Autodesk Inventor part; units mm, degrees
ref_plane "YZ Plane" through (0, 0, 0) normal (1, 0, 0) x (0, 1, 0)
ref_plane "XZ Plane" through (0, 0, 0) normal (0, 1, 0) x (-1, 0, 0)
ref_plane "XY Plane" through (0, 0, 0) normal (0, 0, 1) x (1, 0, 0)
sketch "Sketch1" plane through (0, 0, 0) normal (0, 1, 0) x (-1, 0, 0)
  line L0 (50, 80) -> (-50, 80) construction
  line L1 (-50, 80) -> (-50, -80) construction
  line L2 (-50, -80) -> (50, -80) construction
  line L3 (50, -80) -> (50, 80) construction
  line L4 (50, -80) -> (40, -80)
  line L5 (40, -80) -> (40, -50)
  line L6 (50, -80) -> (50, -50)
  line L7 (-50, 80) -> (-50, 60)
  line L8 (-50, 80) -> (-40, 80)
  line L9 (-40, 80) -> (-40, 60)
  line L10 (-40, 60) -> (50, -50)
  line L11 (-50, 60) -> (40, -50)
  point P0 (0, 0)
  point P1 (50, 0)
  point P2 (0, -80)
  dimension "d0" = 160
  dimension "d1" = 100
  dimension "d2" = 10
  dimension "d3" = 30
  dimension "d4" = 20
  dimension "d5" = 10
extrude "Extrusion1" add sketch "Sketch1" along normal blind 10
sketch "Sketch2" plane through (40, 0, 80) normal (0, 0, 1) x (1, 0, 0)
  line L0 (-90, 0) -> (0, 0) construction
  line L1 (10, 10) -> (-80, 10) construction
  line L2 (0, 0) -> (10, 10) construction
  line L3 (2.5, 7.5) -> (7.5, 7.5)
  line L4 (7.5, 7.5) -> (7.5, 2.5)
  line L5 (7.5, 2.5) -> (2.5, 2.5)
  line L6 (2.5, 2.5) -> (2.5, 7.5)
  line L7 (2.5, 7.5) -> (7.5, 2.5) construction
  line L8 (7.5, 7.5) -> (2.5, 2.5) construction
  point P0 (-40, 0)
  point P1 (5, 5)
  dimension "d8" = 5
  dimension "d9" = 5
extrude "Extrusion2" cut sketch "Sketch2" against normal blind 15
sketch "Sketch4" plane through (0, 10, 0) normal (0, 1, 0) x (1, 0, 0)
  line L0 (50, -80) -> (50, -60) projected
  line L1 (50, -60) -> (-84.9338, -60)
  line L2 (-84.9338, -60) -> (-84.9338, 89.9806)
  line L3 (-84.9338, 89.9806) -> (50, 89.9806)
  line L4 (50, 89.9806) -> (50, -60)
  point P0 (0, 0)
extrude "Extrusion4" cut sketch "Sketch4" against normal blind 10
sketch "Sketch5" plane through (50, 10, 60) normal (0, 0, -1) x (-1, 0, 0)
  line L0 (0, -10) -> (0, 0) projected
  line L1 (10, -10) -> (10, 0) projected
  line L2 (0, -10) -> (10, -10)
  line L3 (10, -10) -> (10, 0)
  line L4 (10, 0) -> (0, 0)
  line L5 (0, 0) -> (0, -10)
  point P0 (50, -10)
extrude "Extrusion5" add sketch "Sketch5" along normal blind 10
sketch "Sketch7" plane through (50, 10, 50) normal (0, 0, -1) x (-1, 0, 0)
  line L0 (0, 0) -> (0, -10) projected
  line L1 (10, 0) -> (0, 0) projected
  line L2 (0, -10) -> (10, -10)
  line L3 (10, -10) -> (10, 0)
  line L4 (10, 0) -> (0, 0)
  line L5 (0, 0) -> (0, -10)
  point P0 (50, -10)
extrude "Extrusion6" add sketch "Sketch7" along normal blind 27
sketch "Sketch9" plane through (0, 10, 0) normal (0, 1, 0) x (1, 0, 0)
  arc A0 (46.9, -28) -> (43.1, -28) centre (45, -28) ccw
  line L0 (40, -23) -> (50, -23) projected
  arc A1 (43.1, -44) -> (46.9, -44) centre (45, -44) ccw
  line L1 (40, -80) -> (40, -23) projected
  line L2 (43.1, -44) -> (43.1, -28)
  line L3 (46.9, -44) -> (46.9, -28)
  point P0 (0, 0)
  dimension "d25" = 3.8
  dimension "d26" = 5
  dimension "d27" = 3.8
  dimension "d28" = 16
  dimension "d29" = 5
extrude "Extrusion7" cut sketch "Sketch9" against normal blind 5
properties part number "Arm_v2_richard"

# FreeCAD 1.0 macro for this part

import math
import FreeCAD as App
import Part
import Sketcher
from FreeCAD import Vector

doc = App.newDocument("Part")
params = doc.addObject("Spreadsheet::Sheet", "Params")
for row, (alias, value) in enumerate([
    ("sketch1_width", "10 mm"),
    ("sketch1_height", "30 mm"),
    ("sketch1_height2", "20 mm"),
    ("pad1_length", "10 mm"),
    ("sketch2_width", "5 mm"),
    ("pocket1_length", "15 mm"),
    ("pocket2_length", "10 mm"),
    ("sketch4_width", "10 mm"),
    ("pad2_length", "10 mm"),
    ("sketch5_width", "10 mm"),
    ("pad3_length", "27 mm"),
    ("sketch6_radius", "1.9 mm"),
    ("sketch6_height", "16 mm"),
    ("pocket3_length", "5 mm"),
], start=1):
    params.set(f"A{row}", alias)
    params.set(f"B{row}", "=" + value)
    params.setAlias(f"B{row}", alias)

body = doc.addObject("PartDesign::Body", "Body")

# Sketch on XZ plane
sketch1 = body.newObject("Sketcher::SketchObject", "Sketch")
sketch1.AttachmentSupport = (doc.getObject("XZ_Plane"), [""])
sketch1.MapMode = "FlatFace"
sketch1.addGeometry([
    Part.LineSegment(Vector(-40, -80, 0), Vector(-50, -80, 0)),  # 0
    Part.LineSegment(Vector(-50, -80, 0), Vector(-50, -50, 0)),  # 1
    Part.LineSegment(Vector(-50, -50, 0), Vector(40, 60, 0)),  # 2
    Part.LineSegment(Vector(40, 60, 0), Vector(40, 80, 0)),  # 3
    Part.LineSegment(Vector(40, 80, 0), Vector(50, 80, 0)),  # 4
    Part.LineSegment(Vector(50, 80, 0), Vector(50, 60, 0)),  # 5
    Part.LineSegment(Vector(50, 60, 0), Vector(-40, -50, 0)),  # 6
    Part.LineSegment(Vector(-40, -50, 0), Vector(-40, -80, 0)),  # 7
], False)
sketch1.addConstraint([
    Sketcher.Constraint("Coincident", 0, 2, 1, 1),
    Sketcher.Constraint("Coincident", 1, 2, 2, 1),
    Sketcher.Constraint("Coincident", 2, 2, 3, 1),
    Sketcher.Constraint("Coincident", 3, 2, 4, 1),
    Sketcher.Constraint("Coincident", 4, 2, 5, 1),
    Sketcher.Constraint("Coincident", 5, 2, 6, 1),
    Sketcher.Constraint("Coincident", 6, 2, 7, 1),
    Sketcher.Constraint("Coincident", 7, 2, 0, 1),
    Sketcher.Constraint("Horizontal", 0),
    Sketcher.Constraint("Vertical", 1),
    Sketcher.Constraint("Vertical", 3),
    Sketcher.Constraint("Horizontal", 4),
    Sketcher.Constraint("Vertical", 5),
    Sketcher.Constraint("Vertical", 7),
    Sketcher.Constraint("Symmetric", 0, 2, 4, 2, -1, 1),
    Sketcher.Constraint("Parallel", 2, 6),
    Sketcher.Constraint("Horizontal", 2, 2, 5, 2),
    Sketcher.Constraint("Horizontal", 1, 2, 6, 2),
    Sketcher.Constraint("DistanceX", 0, 2, 0, 1, 10.0),
    Sketcher.Constraint("DistanceY", 1, 1, 1, 2, 30.0),
    Sketcher.Constraint("DistanceY", 3, 1, 3, 2, 20.0),
    Sketcher.Constraint("DistanceY", 0, 2, 3, 2, 160.0),
    Sketcher.Constraint("DistanceX", 1, 2, 4, 2, 100.0),
])
sketch1.setExpression("Constraints[18]", "Params.sketch1_width")
sketch1.setExpression("Constraints[19]", "Params.sketch1_height")
sketch1.setExpression("Constraints[20]", "Params.sketch1_height2")
pad1 = body.newObject("PartDesign::Pad", "Pad")
pad1.Profile = sketch1
pad1.setExpression("Length", "Params.pad1_length")
pad1.Reversed = True

# Sketch on XY plane
sketch2 = body.newObject("Sketcher::SketchObject", "Sketch001")
sketch2.AttachmentSupport = (doc.getObject("XY_Plane"), [""])
sketch2.MapMode = "FlatFace"
sketch2.AttachmentOffset = App.Placement(Vector(0, 0, 80), App.Rotation())
sketch2.addGeometry([
    Part.LineSegment(Vector(48, 8, 0), Vector(42, 8, 0)),
    Part.LineSegment(Vector(42, 8, 0), Vector(42, 2, 0)),
    Part.LineSegment(Vector(42, 2, 0), Vector(48, 2, 0)),
    Part.LineSegment(Vector(48, 2, 0), Vector(48, 8, 0)),
], False)
sketch2.addConstraint([
    Sketcher.Constraint("Coincident", 0, 2, 1, 1),
    Sketcher.Constraint("Coincident", 1, 2, 2, 1),
    Sketcher.Constraint("Coincident", 2, 2, 3, 1),
    Sketcher.Constraint("Coincident", 3, 2, 0, 1),
    Sketcher.Constraint("Horizontal", 0),
    Sketcher.Constraint("Vertical", 1),
    Sketcher.Constraint("Horizontal", 2),
    Sketcher.Constraint("Vertical", 3),
    Sketcher.Constraint("Equal", 2, 1),
    Sketcher.Constraint("DistanceX", 0, 2, 0, 1, 5.0),
    Sketcher.Constraint("DistanceX", -1, 1, 0, 2, 42.5),
    Sketcher.Constraint("DistanceY", -1, 1, 0, 2, 7.5),
])
sketch2.setExpression("Constraints[9]", "Params.sketch2_width")
pocket1 = body.newObject("PartDesign::Pocket", "Pocket")
pocket1.Profile = sketch2
pocket1.setExpression("Length", "Params.pocket1_length")

# Sketch on XZ plane
sketch3 = body.newObject("Sketcher::SketchObject", "Sketch002")
sketch3.AttachmentSupport = (doc.getObject("XZ_Plane"), [""])
sketch3.MapMode = "FlatFace"
sketch3.AttachmentOffset = App.Placement(Vector(0, 0, -10), App.Rotation())
sketch3.addGeometry([
    Part.LineSegment(Vector(-85, 60, 0), Vector(50, 60, 0)),
    Part.LineSegment(Vector(50, 60, 0), Vector(50, -90, 0)),
    Part.LineSegment(Vector(50, -90, 0), Vector(-85, -90, 0)),
    Part.LineSegment(Vector(-85, -90, 0), Vector(-85, 60, 0)),
], False)
sketch3.addConstraint([
    Sketcher.Constraint("Coincident", 0, 2, 1, 1),
    Sketcher.Constraint("Coincident", 1, 2, 2, 1),
    Sketcher.Constraint("Coincident", 2, 2, 3, 1),
    Sketcher.Constraint("Coincident", 3, 2, 0, 1),
    Sketcher.Constraint("Horizontal", 0),
    Sketcher.Constraint("Vertical", 1),
    Sketcher.Constraint("Horizontal", 2),
    Sketcher.Constraint("Vertical", 3),
    Sketcher.Constraint("DistanceX", -1, 1, 0, 2, 50.0),
    Sketcher.Constraint("DistanceY", -1, 1, 0, 2, 60.0),
    Sketcher.Constraint("DistanceX", 0, 1, 0, 2, 134.9338),
    Sketcher.Constraint("DistanceY", 1, 2, 1, 1, 149.9806),
])
pocket2 = body.newObject("PartDesign::Pocket", "Pocket001")
pocket2.Profile = sketch3
pocket2.setExpression("Length", "Params.pocket2_length")
pocket2.Reversed = True

# Sketch on XY plane
sketch4 = body.newObject("Sketcher::SketchObject", "Sketch003")
sketch4.AttachmentSupport = (doc.getObject("XY_Plane"), [""])
sketch4.MapMode = "FlatFace"
sketch4.AttachmentOffset = App.Placement(Vector(0, 0, 60), App.Rotation())
sketch4.addGeometry([
    Part.LineSegment(Vector(50, 10, 0), Vector(50, 0, 0)),
    Part.LineSegment(Vector(50, 0, 0), Vector(40, 0, 0)),
    Part.LineSegment(Vector(40, 0, 0), Vector(40, 10, 0)),
    Part.LineSegment(Vector(40, 10, 0), Vector(50, 10, 0)),
], False)
sketch4.addConstraint([
    Sketcher.Constraint("Coincident", 0, 2, 1, 1),
    Sketcher.Constraint("Coincident", 1, 2, 2, 1),
    Sketcher.Constraint("Coincident", 2, 2, 3, 1),
    Sketcher.Constraint("Coincident", 3, 2, 0, 1),
    Sketcher.Constraint("Vertical", 0),
    Sketcher.Constraint("Horizontal", 1),
    Sketcher.Constraint("Vertical", 2),
    Sketcher.Constraint("Horizontal", 3),
    Sketcher.Constraint("PointOnObject", 0, 2, -1),
    Sketcher.Constraint("Equal", 3, 0),
    Sketcher.Constraint("DistanceX", 1, 2, 1, 1, 10.0),
    Sketcher.Constraint("DistanceX", -1, 1, 0, 2, 50.0),
])
sketch4.setExpression("Constraints[10]", "Params.sketch4_width")
pad2 = body.newObject("PartDesign::Pad", "Pad001")
pad2.Profile = sketch4
pad2.setExpression("Length", "Params.pad2_length")
pad2.Reversed = True

# Sketch on XY plane
sketch5 = body.newObject("Sketcher::SketchObject", "Sketch004")
sketch5.AttachmentSupport = (doc.getObject("XY_Plane"), [""])
sketch5.MapMode = "FlatFace"
sketch5.AttachmentOffset = App.Placement(Vector(0, 0, 50), App.Rotation())
sketch5.addGeometry([
    Part.LineSegment(Vector(40, 10, 0), Vector(50, 10, 0)),
    Part.LineSegment(Vector(50, 10, 0), Vector(50, 0, 0)),
    Part.LineSegment(Vector(50, 0, 0), Vector(40, 0, 0)),
    Part.LineSegment(Vector(40, 0, 0), Vector(40, 10, 0)),
], False)
sketch5.addConstraint([
    Sketcher.Constraint("Coincident", 0, 2, 1, 1),
    Sketcher.Constraint("Coincident", 1, 2, 2, 1),
    Sketcher.Constraint("Coincident", 2, 2, 3, 1),
    Sketcher.Constraint("Coincident", 3, 2, 0, 1),
    Sketcher.Constraint("Horizontal", 0),
    Sketcher.Constraint("Vertical", 1),
    Sketcher.Constraint("Horizontal", 2),
    Sketcher.Constraint("Vertical", 3),
    Sketcher.Constraint("PointOnObject", 1, 2, -1),
    Sketcher.Constraint("Equal", 2, 1),
    Sketcher.Constraint("DistanceX", 0, 1, 0, 2, 10.0),
    Sketcher.Constraint("DistanceX", -1, 1, 0, 2, 50.0),
])
sketch5.setExpression("Constraints[10]", "Params.sketch5_width")
pad3 = body.newObject("PartDesign::Pad", "Pad002")
pad3.Profile = sketch5
pad3.setExpression("Length", "Params.pad3_length")
pad3.Reversed = True

# Sketch on XZ plane
sketch6 = body.newObject("Sketcher::SketchObject", "Sketch005")
sketch6.AttachmentSupport = (doc.getObject("XZ_Plane"), [""])
sketch6.MapMode = "FlatFace"
sketch6.AttachmentOffset = App.Placement(Vector(0, 0, -10), App.Rotation())
sketch6.addGeometry([
    Part.LineSegment(Vector(46.9, 44, 0), Vector(46.9, 28, 0)),
    Part.ArcOfCircle(Part.Circle(Vector(45, 28, 0), Vector(0, 0, 1), 1.9), math.radians(180), math.radians(360)),
    Part.LineSegment(Vector(43.1, 28, 0), Vector(43.1, 44, 0)),
    Part.ArcOfCircle(Part.Circle(Vector(45, 44, 0), Vector(0, 0, 1), 1.9), math.radians(0), math.radians(180)),
], False)
sketch6.addConstraint([
    Sketcher.Constraint("Tangent", 0, 2, 1, 2),
    Sketcher.Constraint("Tangent", 1, 1, 2, 1),
    Sketcher.Constraint("Tangent", 2, 2, 3, 2),
    Sketcher.Constraint("Tangent", 3, 1, 0, 1),
    Sketcher.Constraint("Vertical", 0),
    Sketcher.Constraint("Vertical", 2),
    Sketcher.Constraint("Radius", 1, 1.9),
    Sketcher.Constraint("DistanceY", 0, 2, 0, 1, 16.0),
    Sketcher.Constraint("DistanceX", -1, 1, 1, 3, 45.0),
    Sketcher.Constraint("DistanceY", -1, 1, 1, 3, 28.0),
])
sketch6.setExpression("Constraints[6]", "Params.sketch6_radius")
sketch6.setExpression("Constraints[7]", "Params.sketch6_height")
pocket3 = body.newObject("PartDesign::Pocket", "Pocket002")
pocket3.Profile = sketch6
pocket3.setExpression("Length", "Params.pocket3_length")
pocket3.Reversed = True

doc.recompute()
